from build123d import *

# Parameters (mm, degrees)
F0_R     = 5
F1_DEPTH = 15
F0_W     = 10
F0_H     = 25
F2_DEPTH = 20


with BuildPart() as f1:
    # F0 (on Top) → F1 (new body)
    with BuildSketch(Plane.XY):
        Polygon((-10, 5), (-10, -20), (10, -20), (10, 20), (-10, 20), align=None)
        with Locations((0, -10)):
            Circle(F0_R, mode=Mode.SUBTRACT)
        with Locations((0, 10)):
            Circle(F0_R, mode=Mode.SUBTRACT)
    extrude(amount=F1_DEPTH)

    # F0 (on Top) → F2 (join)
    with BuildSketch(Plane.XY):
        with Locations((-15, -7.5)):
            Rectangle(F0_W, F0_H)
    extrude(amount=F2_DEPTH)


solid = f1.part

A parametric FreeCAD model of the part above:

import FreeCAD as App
import Part
import Sketcher
Q = App.Units.Quantity

doc = App.newDocument("Part")
body = doc.addObject("PartDesign::Body", "Body")

# Sketch on XY plane
sketch1 = body.newObject("Sketcher::SketchObject", "Sketch")
sketch1.AttachmentSupport = (doc.getObject("XY_Plane"), [""])
sketch1.MapMode = "FlatFace"
sketch1.addGeometry([
    Part.LineSegment(App.Vector(-10, -20, 0), App.Vector(10, -20, 0)),  # 0
    Part.LineSegment(App.Vector(10, -20, 0), App.Vector(10, 20, 0)),  # 1
    Part.LineSegment(App.Vector(10, 20, 0), App.Vector(-10, 20, 0)),  # 2
    Part.LineSegment(App.Vector(-10, 20, 0), App.Vector(-10, -20, 0)),  # 3
    Part.Circle(App.Vector(0, -10, 0), App.Vector(0, 0, 1), 5),  # 4
    Part.Circle(App.Vector(0, 10, 0), App.Vector(0, 0, 1), 5),  # 5
], False)
sketch1.addConstraint([
    Sketcher.Constraint("Coincident", 0, 2, 1, 1),
    Sketcher.Constraint("Coincident", 1, 2, 2, 1),
    Sketcher.Constraint("Coincident", 2, 2, 3, 1),
    Sketcher.Constraint("Coincident", 3, 2, 0, 1),
    Sketcher.Constraint("Horizontal", 0),
    Sketcher.Constraint("Vertical", 1),
    Sketcher.Constraint("Horizontal", 2),
    Sketcher.Constraint("Vertical", 3),
    Sketcher.Constraint("Equal", 4, 5),
    Sketcher.Constraint("Symmetric", 4, 3, 5, 3, -1, 1),
    Sketcher.Constraint("Symmetric", 0, 2, 2, 2, -1, 1),
    Sketcher.Constraint("PointOnObject", 4, 3, -2),
    Sketcher.Constraint("Diameter", 4, Q("10 mm")),
    Sketcher.Constraint("DistanceX", 0, 1, 0, 2, Q("20 mm")),
    Sketcher.Constraint("DistanceY", 1, 1, 1, 2, Q("40 mm")),
    Sketcher.Constraint("DistanceY", 4, 3, -1, 1, Q("10 mm")),
])
pad1 = body.newObject("PartDesign::Pad", "Pad")
pad1.Profile = sketch1
pad1.Length = 15

# Sketch on XY plane
sketch2 = body.newObject("Sketcher::SketchObject", "Sketch001")
sketch2.AttachmentSupport = (doc.getObject("XY_Plane"), [""])
sketch2.MapMode = "FlatFace"
sketch2.addGeometry([
    Part.LineSegment(App.Vector(-20, 5, 0), App.Vector(-20, -20, 0)),
    Part.LineSegment(App.Vector(-20, -20, 0), App.Vector(-10, -20, 0)),
    Part.LineSegment(App.Vector(-10, -20, 0), App.Vector(-10, 5, 0)),
    Part.LineSegment(App.Vector(-10, 5, 0), App.Vector(-20, 5, 0)),
], False)
sketch2.addConstraint([
    Sketcher.Constraint("Coincident", 0, 2, 1, 1),
    Sketcher.Constraint("Coincident", 1, 2, 2, 1),
    Sketcher.Constraint("Coincident", 2, 2, 3, 1),
    Sketcher.Constraint("Coincident", 3, 2, 0, 1),
    Sketcher.Constraint("Vertical", 0),
    Sketcher.Constraint("Horizontal", 1),
    Sketcher.Constraint("Vertical", 2),
    Sketcher.Constraint("Horizontal", 3),
    Sketcher.Constraint("DistanceX", 1, 1, 1, 2, Q("10 mm")),
    Sketcher.Constraint("DistanceY", 0, 2, 0, 1, Q("25 mm")),
    Sketcher.Constraint("DistanceX", 0, 2, -1, 1, Q("20 mm")),
    Sketcher.Constraint("DistanceY", 0, 2, -1, 1, Q("20 mm")),
])
pad2 = body.newObject("PartDesign::Pad", "Pad001")
pad2.Profile = sketch2
pad2.Length = 20

doc.recompute()
